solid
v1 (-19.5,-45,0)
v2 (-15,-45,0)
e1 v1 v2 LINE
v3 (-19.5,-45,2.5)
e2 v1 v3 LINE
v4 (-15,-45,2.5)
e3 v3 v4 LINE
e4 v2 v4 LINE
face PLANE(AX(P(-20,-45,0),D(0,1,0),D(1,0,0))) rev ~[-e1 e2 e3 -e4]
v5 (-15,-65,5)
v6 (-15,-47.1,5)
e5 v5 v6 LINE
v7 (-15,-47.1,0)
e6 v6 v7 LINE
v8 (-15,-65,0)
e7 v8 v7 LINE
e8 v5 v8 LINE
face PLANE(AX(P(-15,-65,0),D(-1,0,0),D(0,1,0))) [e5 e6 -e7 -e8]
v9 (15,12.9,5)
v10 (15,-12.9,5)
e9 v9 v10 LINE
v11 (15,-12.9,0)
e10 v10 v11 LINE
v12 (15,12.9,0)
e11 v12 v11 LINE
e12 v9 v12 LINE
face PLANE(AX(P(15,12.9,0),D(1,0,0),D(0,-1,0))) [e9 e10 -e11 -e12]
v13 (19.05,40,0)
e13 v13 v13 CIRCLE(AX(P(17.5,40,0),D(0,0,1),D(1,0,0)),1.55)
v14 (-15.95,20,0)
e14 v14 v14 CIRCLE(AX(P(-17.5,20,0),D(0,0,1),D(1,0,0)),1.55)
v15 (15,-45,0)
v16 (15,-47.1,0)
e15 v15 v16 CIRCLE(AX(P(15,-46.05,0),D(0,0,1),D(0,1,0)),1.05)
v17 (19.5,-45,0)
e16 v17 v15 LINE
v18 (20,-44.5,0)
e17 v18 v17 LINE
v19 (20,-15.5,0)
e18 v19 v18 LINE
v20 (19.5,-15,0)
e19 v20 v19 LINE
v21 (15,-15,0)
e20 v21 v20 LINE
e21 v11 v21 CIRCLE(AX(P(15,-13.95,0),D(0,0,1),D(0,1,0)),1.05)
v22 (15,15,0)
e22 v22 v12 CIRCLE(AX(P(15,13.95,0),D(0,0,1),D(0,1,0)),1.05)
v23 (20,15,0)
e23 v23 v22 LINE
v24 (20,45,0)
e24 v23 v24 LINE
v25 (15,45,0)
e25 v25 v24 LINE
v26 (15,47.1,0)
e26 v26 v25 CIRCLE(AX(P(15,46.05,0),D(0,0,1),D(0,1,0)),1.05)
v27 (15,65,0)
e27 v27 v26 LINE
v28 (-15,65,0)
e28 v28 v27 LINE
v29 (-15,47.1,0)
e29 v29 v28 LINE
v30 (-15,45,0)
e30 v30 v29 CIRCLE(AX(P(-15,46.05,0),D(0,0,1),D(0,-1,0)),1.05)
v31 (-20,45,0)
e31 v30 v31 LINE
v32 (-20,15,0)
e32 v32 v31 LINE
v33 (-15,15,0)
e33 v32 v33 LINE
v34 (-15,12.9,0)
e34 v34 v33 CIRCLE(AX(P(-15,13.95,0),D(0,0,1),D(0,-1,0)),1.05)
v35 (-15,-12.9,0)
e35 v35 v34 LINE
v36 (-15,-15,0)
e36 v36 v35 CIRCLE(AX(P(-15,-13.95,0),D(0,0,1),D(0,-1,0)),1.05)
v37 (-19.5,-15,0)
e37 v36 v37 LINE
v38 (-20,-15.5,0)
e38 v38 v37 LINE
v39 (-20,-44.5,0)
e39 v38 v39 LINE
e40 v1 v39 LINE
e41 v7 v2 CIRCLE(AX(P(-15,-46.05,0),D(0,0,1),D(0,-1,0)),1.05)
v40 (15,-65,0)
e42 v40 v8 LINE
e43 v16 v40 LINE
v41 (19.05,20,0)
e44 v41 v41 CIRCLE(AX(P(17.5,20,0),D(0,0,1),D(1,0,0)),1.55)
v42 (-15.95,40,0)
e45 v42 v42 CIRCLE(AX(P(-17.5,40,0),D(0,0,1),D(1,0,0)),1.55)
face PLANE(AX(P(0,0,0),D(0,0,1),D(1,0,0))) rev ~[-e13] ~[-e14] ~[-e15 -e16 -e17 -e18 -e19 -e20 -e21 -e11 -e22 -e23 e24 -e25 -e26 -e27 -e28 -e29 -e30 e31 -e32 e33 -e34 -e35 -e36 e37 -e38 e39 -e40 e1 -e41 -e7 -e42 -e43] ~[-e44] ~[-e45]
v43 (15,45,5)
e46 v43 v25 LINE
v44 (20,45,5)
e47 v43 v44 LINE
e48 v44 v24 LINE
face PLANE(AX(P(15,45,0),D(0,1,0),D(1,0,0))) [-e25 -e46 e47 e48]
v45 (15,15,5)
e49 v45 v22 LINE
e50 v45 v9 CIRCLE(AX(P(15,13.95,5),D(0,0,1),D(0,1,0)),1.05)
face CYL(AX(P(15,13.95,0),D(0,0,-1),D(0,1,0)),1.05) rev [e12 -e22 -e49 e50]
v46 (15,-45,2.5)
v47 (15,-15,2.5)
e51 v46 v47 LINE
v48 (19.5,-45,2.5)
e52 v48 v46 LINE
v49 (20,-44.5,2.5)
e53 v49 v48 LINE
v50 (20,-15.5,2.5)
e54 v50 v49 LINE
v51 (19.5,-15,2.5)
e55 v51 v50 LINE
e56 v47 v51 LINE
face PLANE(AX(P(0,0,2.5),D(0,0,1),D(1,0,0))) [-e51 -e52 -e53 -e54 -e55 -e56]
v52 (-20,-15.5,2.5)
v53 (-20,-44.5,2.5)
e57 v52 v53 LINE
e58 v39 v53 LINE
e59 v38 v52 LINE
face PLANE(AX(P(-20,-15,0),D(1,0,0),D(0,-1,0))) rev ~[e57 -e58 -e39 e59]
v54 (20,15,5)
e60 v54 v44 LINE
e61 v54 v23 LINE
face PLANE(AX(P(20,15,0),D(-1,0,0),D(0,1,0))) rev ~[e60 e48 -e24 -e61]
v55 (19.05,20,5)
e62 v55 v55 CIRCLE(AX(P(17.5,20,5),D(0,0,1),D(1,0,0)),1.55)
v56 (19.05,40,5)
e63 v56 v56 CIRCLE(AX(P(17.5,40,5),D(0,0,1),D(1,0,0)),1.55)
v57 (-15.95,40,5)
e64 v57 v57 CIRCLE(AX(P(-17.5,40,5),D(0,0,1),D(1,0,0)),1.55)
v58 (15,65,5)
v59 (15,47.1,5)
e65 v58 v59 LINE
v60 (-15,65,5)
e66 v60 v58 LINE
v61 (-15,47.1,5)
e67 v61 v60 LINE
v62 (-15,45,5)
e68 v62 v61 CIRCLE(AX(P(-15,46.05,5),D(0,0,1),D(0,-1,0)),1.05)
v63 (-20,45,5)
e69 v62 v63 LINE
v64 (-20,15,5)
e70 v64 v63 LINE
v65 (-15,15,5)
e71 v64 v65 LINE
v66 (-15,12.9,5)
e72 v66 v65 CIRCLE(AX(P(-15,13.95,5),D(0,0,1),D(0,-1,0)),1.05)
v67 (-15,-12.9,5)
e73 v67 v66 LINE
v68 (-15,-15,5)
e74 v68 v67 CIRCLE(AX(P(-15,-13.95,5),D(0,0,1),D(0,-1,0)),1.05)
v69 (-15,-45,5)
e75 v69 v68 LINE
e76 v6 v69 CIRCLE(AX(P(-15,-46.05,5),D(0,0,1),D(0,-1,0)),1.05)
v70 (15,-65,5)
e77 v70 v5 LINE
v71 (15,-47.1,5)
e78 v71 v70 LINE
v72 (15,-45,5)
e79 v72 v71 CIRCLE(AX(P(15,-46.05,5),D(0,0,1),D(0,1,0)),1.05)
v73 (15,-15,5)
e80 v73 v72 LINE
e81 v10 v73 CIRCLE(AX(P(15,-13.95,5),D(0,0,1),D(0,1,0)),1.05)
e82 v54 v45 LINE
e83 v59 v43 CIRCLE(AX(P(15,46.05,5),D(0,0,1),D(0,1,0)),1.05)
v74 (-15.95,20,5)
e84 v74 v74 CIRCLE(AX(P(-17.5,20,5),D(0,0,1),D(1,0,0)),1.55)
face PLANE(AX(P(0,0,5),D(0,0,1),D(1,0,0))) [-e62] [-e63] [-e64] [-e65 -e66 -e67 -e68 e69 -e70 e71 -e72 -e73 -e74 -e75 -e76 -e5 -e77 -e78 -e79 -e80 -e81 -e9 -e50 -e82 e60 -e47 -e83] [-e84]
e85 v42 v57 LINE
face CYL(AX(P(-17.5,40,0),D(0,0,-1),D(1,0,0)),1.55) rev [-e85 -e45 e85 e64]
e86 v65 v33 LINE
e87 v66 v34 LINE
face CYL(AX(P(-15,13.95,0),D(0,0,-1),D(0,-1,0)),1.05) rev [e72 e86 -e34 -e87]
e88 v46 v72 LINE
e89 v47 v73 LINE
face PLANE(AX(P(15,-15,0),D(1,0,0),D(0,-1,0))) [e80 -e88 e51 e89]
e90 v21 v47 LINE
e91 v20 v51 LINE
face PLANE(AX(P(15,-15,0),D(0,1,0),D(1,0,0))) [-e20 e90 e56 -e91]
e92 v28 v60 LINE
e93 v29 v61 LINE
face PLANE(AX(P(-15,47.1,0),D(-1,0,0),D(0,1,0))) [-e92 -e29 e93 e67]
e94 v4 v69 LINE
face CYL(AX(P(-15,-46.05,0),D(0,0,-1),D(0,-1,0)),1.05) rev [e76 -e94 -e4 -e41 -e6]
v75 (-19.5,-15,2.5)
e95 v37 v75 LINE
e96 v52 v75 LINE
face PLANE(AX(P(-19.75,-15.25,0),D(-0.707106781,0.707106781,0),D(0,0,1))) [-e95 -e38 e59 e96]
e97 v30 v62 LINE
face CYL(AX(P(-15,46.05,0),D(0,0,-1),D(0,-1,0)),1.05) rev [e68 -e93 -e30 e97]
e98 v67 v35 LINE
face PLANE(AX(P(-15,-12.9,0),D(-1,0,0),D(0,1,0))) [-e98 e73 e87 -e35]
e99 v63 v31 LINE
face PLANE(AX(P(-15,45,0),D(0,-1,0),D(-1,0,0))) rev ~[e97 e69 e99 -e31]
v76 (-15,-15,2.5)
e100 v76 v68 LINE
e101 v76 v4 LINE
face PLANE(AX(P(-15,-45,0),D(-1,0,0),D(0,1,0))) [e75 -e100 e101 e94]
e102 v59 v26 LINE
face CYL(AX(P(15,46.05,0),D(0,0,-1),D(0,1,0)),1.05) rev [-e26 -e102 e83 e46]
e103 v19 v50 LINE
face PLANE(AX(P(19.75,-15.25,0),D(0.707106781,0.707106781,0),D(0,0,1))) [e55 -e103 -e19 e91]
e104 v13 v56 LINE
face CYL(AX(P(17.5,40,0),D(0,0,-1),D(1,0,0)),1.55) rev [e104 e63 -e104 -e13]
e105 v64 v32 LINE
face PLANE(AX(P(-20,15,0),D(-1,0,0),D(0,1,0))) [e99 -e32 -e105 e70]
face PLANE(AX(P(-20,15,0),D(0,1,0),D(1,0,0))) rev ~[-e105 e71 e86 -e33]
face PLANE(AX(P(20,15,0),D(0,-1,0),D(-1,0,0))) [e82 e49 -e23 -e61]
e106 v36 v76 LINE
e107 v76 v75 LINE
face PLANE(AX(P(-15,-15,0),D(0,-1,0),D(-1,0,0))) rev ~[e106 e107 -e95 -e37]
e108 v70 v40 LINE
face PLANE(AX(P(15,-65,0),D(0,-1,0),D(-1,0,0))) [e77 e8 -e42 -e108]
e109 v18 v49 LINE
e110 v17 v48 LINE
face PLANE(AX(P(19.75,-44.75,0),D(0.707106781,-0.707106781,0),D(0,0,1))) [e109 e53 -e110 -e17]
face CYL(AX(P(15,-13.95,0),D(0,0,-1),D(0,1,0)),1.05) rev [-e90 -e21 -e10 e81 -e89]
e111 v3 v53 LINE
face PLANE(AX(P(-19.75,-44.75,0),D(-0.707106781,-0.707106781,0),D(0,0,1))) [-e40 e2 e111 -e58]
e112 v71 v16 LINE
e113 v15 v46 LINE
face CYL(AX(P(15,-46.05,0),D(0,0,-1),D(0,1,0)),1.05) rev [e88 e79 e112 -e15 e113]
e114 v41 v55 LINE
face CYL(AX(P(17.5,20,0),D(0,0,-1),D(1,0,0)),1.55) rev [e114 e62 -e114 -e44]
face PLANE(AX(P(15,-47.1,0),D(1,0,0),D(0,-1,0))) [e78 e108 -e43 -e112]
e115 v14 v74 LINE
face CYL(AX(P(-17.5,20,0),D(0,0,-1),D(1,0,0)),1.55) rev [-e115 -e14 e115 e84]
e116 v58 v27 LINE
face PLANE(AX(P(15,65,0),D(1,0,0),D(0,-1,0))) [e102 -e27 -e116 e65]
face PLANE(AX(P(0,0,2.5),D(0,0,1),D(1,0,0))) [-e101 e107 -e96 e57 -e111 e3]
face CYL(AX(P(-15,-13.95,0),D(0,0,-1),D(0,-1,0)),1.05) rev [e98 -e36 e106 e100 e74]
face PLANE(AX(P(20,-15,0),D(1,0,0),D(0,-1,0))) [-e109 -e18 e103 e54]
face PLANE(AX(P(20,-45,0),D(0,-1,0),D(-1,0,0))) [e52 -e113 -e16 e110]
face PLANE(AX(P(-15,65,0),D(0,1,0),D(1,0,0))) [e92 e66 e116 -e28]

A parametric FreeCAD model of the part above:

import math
import FreeCAD as App
import Part
import Sketcher

V = App.Vector
Q = App.Units.Quantity


def edges_at(feature, points):
    """Names of the edges that pass closest to the given points."""
    edges = feature.Shape.Edges
    near = lambda p: min(range(len(edges)), key=lambda i: edges[i].distToShape(Part.Vertex(*p))[0])
    return sorted({f"Edge{near(p) + 1}" for p in points})

doc = App.newDocument("Part")
body = doc.addObject("PartDesign::Body", "Body")

# Sketch on XY plane
sketch1 = body.newObject("Sketcher::SketchObject", "Sketch")
sketch1.AttachmentSupport = (doc.getObject("XY_Plane"), [""])
sketch1.MapMode = "FlatFace"
sketch1.addGeometry([
    Part.LineSegment(V(15, 65, 0), V(-15, 65, 0)),  # 0
    Part.LineSegment(V(-15, 65, 0), V(-15, 47.1, 0)),  # 1
    Part.ArcOfCircle(Part.Circle(V(-15, 46, 0), V(0, 0, 1), 1), math.radians(-90), math.radians(90)),  # 2
    Part.LineSegment(V(-15, 45, 0), V(-20, 45, 0)),  # 3
    Part.LineSegment(V(-20, 45, 0), V(-20, 15, 0)),  # 4
    Part.LineSegment(V(-20, 15, 0), V(-15, 15, 0)),  # 5
    Part.ArcOfCircle(Part.Circle(V(-15, 13.9, 0), V(0, 0, 1), 1), math.radians(-90), math.radians(90)),  # 6
    Part.LineSegment(V(-15, 12.9, 0), V(-15, -12.9, 0)),  # 7
    Part.ArcOfCircle(Part.Circle(V(-15, -13.9, 0), V(0, 0, 1), 1.1), math.radians(-90), math.radians(90)),  # 8
    Part.LineSegment(V(-15, -15, 0), V(-20, -15, 0)),  # 9
    Part.LineSegment(V(-20, -15, 0), V(-20, -45, 0)),  # 10
    Part.LineSegment(V(-20, -45, 0), V(-15, -45, 0)),  # 11
    Part.ArcOfCircle(Part.Circle(V(-15, -46, 0), V(0, 0, 1), 1.1), math.radians(-90), math.radians(90)),  # 12
    Part.LineSegment(V(-15, -47.1, 0), V(-15, -65, 0)),  # 13
    Part.LineSegment(V(-15, -65, 0), V(15, -65, 0)),  # 14
    Part.LineSegment(V(15, -65, 0), V(15, -47.1, 0)),  # 15
    Part.ArcOfCircle(Part.Circle(V(15, -46, 0), V(0, 0, 1), 1), math.radians(90), math.radians(270)),  # 16
    Part.LineSegment(V(15, -45, 0), V(20, -45, 0)),  # 17
    Part.LineSegment(V(20, -45, 0), V(20, -15, 0)),  # 18
    Part.LineSegment(V(20, -15, 0), V(15, -15, 0)),  # 19
    Part.ArcOfCircle(Part.Circle(V(15, -13.9, 0), V(0, 0, 1), 1), math.radians(90), math.radians(270)),  # 20
    Part.LineSegment(V(15, -12.9, 0), V(15, 12.9, 0)),  # 21
    Part.ArcOfCircle(Part.Circle(V(15, 13.9, 0), V(0, 0, 1), 1.1), math.radians(90), math.radians(270)),  # 22
    Part.LineSegment(V(15, 15, 0), V(20, 15, 0)),  # 23
    Part.LineSegment(V(20, 15, 0), V(20, 45, 0)),  # 24
    Part.LineSegment(V(20, 45, 0), V(15, 45, 0)),  # 25
    Part.ArcOfCircle(Part.Circle(V(15, 46, 0), V(0, 0, 1), 1.1), math.radians(90), math.radians(270)),  # 26
    Part.LineSegment(V(15, 47.1, 0), V(15, 65, 0)),  # 27
    Part.Circle(V(-17.5, 20, 0), V(0, 0, 1), 1.6),  # 28
    Part.Circle(V(-17.5, 40, 0), V(0, 0, 1), 1.6),  # 29
    Part.Circle(V(17.5, 20, 0), V(0, 0, 1), 1.6),  # 30
    Part.Circle(V(17.5, 40, 0), V(0, 0, 1), 1.6),  # 31
], False)
sketch1.addConstraint([
    Sketcher.Constraint("Coincident", 0, 2, 1, 1),
    Sketcher.Constraint("Coincident", 1, 2, 2, 2),
    Sketcher.Constraint("Tangent", 2, 1, 3, 1),
    Sketcher.Constraint("Coincident", 3, 2, 4, 1),
    Sketcher.Constraint("Coincident", 4, 2, 5, 1),
    Sketcher.Constraint("Tangent", 5, 2, 6, 2),
    Sketcher.Constraint("Coincident", 6, 1, 7, 1),
    Sketcher.Constraint("Coincident", 7, 2, 8, 2),
    Sketcher.Constraint("Tangent", 8, 1, 9, 1),
    Sketcher.Constraint("Coincident", 9, 2, 10, 1),
    Sketcher.Constraint("Coincident", 10, 2, 11, 1),
    Sketcher.Constraint("Tangent", 11, 2, 12, 2),
    Sketcher.Constraint("Coincident", 12, 1, 13, 1),
    Sketcher.Constraint("Coincident", 13, 2, 14, 1),
    Sketcher.Constraint("Coincident", 14, 2, 15, 1),
    Sketcher.Constraint("Coincident", 15, 2, 16, 2),
    Sketcher.Constraint("Tangent", 16, 1, 17, 1),
    Sketcher.Constraint("Coincident", 17, 2, 18, 1),
    Sketcher.Constraint("Coincident", 18, 2, 19, 1),
    Sketcher.Constraint("Tangent", 19, 2, 20, 2),
    Sketcher.Constraint("Coincident", 20, 1, 21, 1),
    Sketcher.Constraint("Coincident", 21, 2, 22, 2),
    Sketcher.Constraint("Tangent", 22, 1, 23, 1),
    Sketcher.Constraint("Coincident", 23, 2, 24, 1),
    Sketcher.Constraint("Coincident", 24, 2, 25, 1),
    Sketcher.Constraint("Tangent", 25, 2, 26, 2),
    Sketcher.Constraint("Coincident", 26, 1, 27, 1),
    Sketcher.Constraint("Coincident", 27, 2, 0, 1),
    Sketcher.Constraint("Horizontal", 0),
    Sketcher.Constraint("Vertical", 1),
    Sketcher.Constraint("Horizontal", 3),
    Sketcher.Constraint("Vertical", 4),
    Sketcher.Constraint("Horizontal", 5),
    Sketcher.Constraint("Vertical", 7),
    Sketcher.Constraint("Horizontal", 9),
    Sketcher.Constraint("Vertical", 10),
    Sketcher.Constraint("Horizontal", 11),
    Sketcher.Constraint("Vertical", 13),
    Sketcher.Constraint("Horizontal", 14),
    Sketcher.Constraint("Vertical", 15),
    Sketcher.Constraint("Horizontal", 17),
    Sketcher.Constraint("Vertical", 18),
    Sketcher.Constraint("Horizontal", 19),
    Sketcher.Constraint("Vertical", 21),
    Sketcher.Constraint("Horizontal", 23),
    Sketcher.Constraint("Vertical", 24),
    Sketcher.Constraint("Horizontal", 25),
    Sketcher.Constraint("Vertical", 27),
    Sketcher.Constraint("Equal", 2, 6),
    Sketcher.Constraint("Equal", 6, 8),
    Sketcher.Constraint("Equal", 8, 12),
    Sketcher.Constraint("Equal", 12, 16),
    Sketcher.Constraint("Equal", 16, 20),
    Sketcher.Constraint("Equal", 20, 22),
    Sketcher.Constraint("Equal", 22, 26),
    Sketcher.Constraint("Equal", 28, 29),
    Sketcher.Constraint("Equal", 29, 30),
    Sketcher.Constraint("Equal", 30, 31),
    Sketcher.Constraint("Symmetric", 2, 3, 16, 3, -1, 1),
    Sketcher.Constraint("Symmetric", 6, 3, 20, 3, -1, 1),
    Sketcher.Constraint("Symmetric", 8, 3, 22, 3, -1, 1),
    Sketcher.Constraint("Symmetric", 12, 3, 26, 3, -1, 1),
    Sketcher.Constraint("Symmetric", 0, 2, 14, 2, -1, 1),
    Sketcher.Constraint("Symmetric", 12, 3, 16, 3, -2),
    Sketcher.Constraint("Symmetric", 8, 3, 20, 3, -2),
    Sketcher.Constraint("Symmetric", 28, 3, 30, 3, -2),
    Sketcher.Constraint("Symmetric", 29, 3, 31, 3, -2),
    Sketcher.Constraint("Vertical", 2, 3, 6, 3),
    Sketcher.Constraint("Vertical", 28, 3, 29, 3),
    Sketcher.Constraint("Vertical", 12, 3, 0, 2),
    Sketcher.Constraint("Vertical", 5, 2, 6, 1),
    Sketcher.Constraint("Vertical", 4, 2, 9, 2),
    Sketcher.Constraint("Vertical", 11, 2, 12, 1),
    Sketcher.Constraint("Vertical", 19, 2, 20, 1),
    Sketcher.Constraint("Vertical", 18, 2, 23, 2),
    Sketcher.Constraint("Vertical", 25, 2, 26, 1),
    Sketcher.Constraint("Equal", 11, 17),
    Sketcher.Constraint("Equal", 14, 4),
    Sketcher.Constraint("Diameter", 28, Q("3.1 mm")),
    Sketcher.Constraint("DistanceX", 0, 2, 0, 1, Q("30 mm")),
    Sketcher.Constraint("DistanceX", 3, 2, 3, 1, Q("5 mm")),
    Sketcher.Constraint("Radius", 2, Q("1.05 mm")),
    Sketcher.Constraint("DistanceY", -1, 1, 28, 3, Q("20 mm")),
    Sketcher.Constraint("DistanceY", 28, 3, 29, 3, Q("20 mm")),
    Sketcher.Constraint("DistanceY", 29, 3, 2, 1, Q("5 mm")),
    Sketcher.Constraint("DistanceY", 2, 1, 0, 2, Q("20 mm")),
    Sketcher.Constraint("DistanceX", 28, 3, 6, 3, Q("2.5 mm")),
])
pad1 = body.newObject("PartDesign::Pad", "Pad")
pad1.Profile = sketch1
pad1.Length = 2.5

# Sketch on XY plane
sketch2 = body.newObject("Sketcher::SketchObject", "Sketch001")
sketch2.AttachmentSupport = (doc.getObject("XY_Plane"), [""])
sketch2.MapMode = "FlatFace"
sketch2.addGeometry([
    Part.LineSegment(V(15, 65, 0), V(-15, 65, 0)),  # 0
    Part.LineSegment(V(-15, 65, 0), V(-15, 47.1, 0)),  # 1
    Part.ArcOfCircle(Part.Circle(V(-15, 46, 0), V(0, 0, 1), 1), math.radians(-90), math.radians(90)),  # 2
    Part.LineSegment(V(-15, 45, 0), V(-20, 45, 0)),  # 3
    Part.LineSegment(V(-20, 45, 0), V(-20, 15, 0)),  # 4
    Part.LineSegment(V(-20, 15, 0), V(-15, 15, 0)),  # 5
    Part.ArcOfCircle(Part.Circle(V(-15, 13.9, 0), V(0, 0, 1), 1), math.radians(-90), math.radians(90)),  # 6
    Part.LineSegment(V(-15, 12.9, 0), V(-15, -12.9, 0)),  # 7
    Part.ArcOfCircle(Part.Circle(V(-15, -13.9, 0), V(0, 0, 1), 1.1), math.radians(-90), math.radians(90)),  # 8
    Part.LineSegment(V(-15, -15, 0), V(-15, -45, 0)),  # 9
    Part.ArcOfCircle(Part.Circle(V(-15, -46, 0), V(0, 0, 1), 1.1), math.radians(-90), math.radians(90)),  # 10
    Part.LineSegment(V(-15, -47.1, 0), V(-15, -65, 0)),  # 11
    Part.LineSegment(V(-15, -65, 0), V(15, -65, 0)),  # 12
    Part.LineSegment(V(15, -65, 0), V(15, -47.1, 0)),  # 13
    Part.ArcOfCircle(Part.Circle(V(15, -46, 0), V(0, 0, 1), 1), math.radians(90), math.radians(270)),  # 14
    Part.LineSegment(V(15, -45, 0), V(15, -15, 0)),  # 15
    Part.ArcOfCircle(Part.Circle(V(15, -13.9, 0), V(0, 0, 1), 1), math.radians(90), math.radians(270)),  # 16
    Part.LineSegment(V(15, -12.9, 0), V(15, 12.9, 0)),  # 17
    Part.ArcOfCircle(Part.Circle(V(15, 13.9, 0), V(0, 0, 1), 1.1), math.radians(90), math.radians(270)),  # 18
    Part.LineSegment(V(15, 15, 0), V(20, 15, 0)),  # 19
    Part.LineSegment(V(20, 15, 0), V(20, 45, 0)),  # 20
    Part.LineSegment(V(20, 45, 0), V(15, 45, 0)),  # 21
    Part.ArcOfCircle(Part.Circle(V(15, 46, 0), V(0, 0, 1), 1.1), math.radians(90), math.radians(270)),  # 22
    Part.LineSegment(V(15, 47.1, 0), V(15, 65, 0)),  # 23
    Part.Circle(V(-17.5, 20, 0), V(0, 0, 1), 1.6),  # 24
    Part.Circle(V(-17.5, 40, 0), V(0, 0, 1), 1.6),  # 25
    Part.Circle(V(17.5, 20, 0), V(0, 0, 1), 1.6),  # 26
    Part.Circle(V(17.5, 40, 0), V(0, 0, 1), 1.6),  # 27
], False)
sketch2.addConstraint([
    Sketcher.Constraint("Coincident", 0, 2, 1, 1),
    Sketcher.Constraint("Coincident", 1, 2, 2, 2),
    Sketcher.Constraint("Tangent", 2, 1, 3, 1),
    Sketcher.Constraint("Coincident", 3, 2, 4, 1),
    Sketcher.Constraint("Coincident", 4, 2, 5, 1),
    Sketcher.Constraint("Tangent", 5, 2, 6, 2),
    Sketcher.Constraint("Coincident", 6, 1, 7, 1),
    Sketcher.Constraint("Coincident", 7, 2, 8, 2),
    Sketcher.Constraint("Coincident", 8, 1, 9, 1),
    Sketcher.Constraint("Coincident", 9, 2, 10, 2),
    Sketcher.Constraint("Coincident", 10, 1, 11, 1),
    Sketcher.Constraint("Coincident", 11, 2, 12, 1),
    Sketcher.Constraint("Coincident", 12, 2, 13, 1),
    Sketcher.Constraint("Coincident", 13, 2, 14, 2),
    Sketcher.Constraint("Coincident", 14, 1, 15, 1),
    Sketcher.Constraint("Coincident", 15, 2, 16, 2),
    Sketcher.Constraint("Coincident", 16, 1, 17, 1),
    Sketcher.Constraint("Coincident", 17, 2, 18, 2),
    Sketcher.Constraint("Tangent", 18, 1, 19, 1),
    Sketcher.Constraint("Coincident", 19, 2, 20, 1),
    Sketcher.Constraint("Coincident", 20, 2, 21, 1),
    Sketcher.Constraint("Tangent", 21, 2, 22, 2),
    Sketcher.Constraint("Coincident", 22, 1, 23, 1),
    Sketcher.Constraint("Coincident", 23, 2, 0, 1),
    Sketcher.Constraint("Horizontal", 0),
    Sketcher.Constraint("Vertical", 1),
    Sketcher.Constraint("Horizontal", 3),
    Sketcher.Constraint("Vertical", 4),
    Sketcher.Constraint("Horizontal", 5),
    Sketcher.Constraint("Vertical", 7),
    Sketcher.Constraint("Vertical", 9),
    Sketcher.Constraint("Vertical", 11),
    Sketcher.Constraint("Horizontal", 12),
    Sketcher.Constraint("Vertical", 13),
    Sketcher.Constraint("Vertical", 15),
    Sketcher.Constraint("Vertical", 17),
    Sketcher.Constraint("Horizontal", 19),
    Sketcher.Constraint("Vertical", 20),
    Sketcher.Constraint("Horizontal", 21),
    Sketcher.Constraint("Vertical", 23),
    Sketcher.Constraint("Equal", 2, 6),
    Sketcher.Constraint("Equal", 6, 8),
    Sketcher.Constraint("Equal", 8, 10),
    Sketcher.Constraint("Equal", 10, 14),
    Sketcher.Constraint("Equal", 14, 16),
    Sketcher.Constraint("Equal", 16, 18),
    Sketcher.Constraint("Equal", 18, 22),
    Sketcher.Constraint("Equal", 24, 25),
    Sketcher.Constraint("Equal", 25, 26),
    Sketcher.Constraint("Equal", 26, 27),
    Sketcher.Constraint("Symmetric", 2, 3, 14, 3, -1, 1),
    Sketcher.Constraint("Symmetric", 6, 3, 16, 3, -1, 1),
    Sketcher.Constraint("Symmetric", 8, 3, 18, 3, -1, 1),
    Sketcher.Constraint("Symmetric", 10, 3, 22, 3, -1, 1),
    Sketcher.Constraint("Symmetric", 0, 2, 12, 2, -1, 1),
    Sketcher.Constraint("Symmetric", 10, 3, 14, 3, -2),
    Sketcher.Constraint("Symmetric", 8, 3, 16, 3, -2),
    Sketcher.Constraint("Symmetric", 24, 3, 26, 3, -2),
    Sketcher.Constraint("Symmetric", 25, 3, 27, 3, -2),
    Sketcher.Constraint("Vertical", 2, 3, 6, 3),
    Sketcher.Constraint("Vertical", 24, 3, 25, 3),
    Sketcher.Constraint("Vertical", 10, 3, 0, 2),
    Sketcher.Constraint("Vertical", 5, 2, 6, 1),
    Sketcher.Constraint("Vertical", 7, 2, 8, 1),
    Sketcher.Constraint("Vertical", 9, 2, 10, 1),
    Sketcher.Constraint("Vertical", 13, 2, 14, 1),
    Sketcher.Constraint("Vertical", 15, 2, 16, 1),
    Sketcher.Constraint("Vertical", 21, 2, 22, 1),
    Sketcher.Constraint("Equal", 5, 19),
    Sketcher.Constraint("Equal", 12, 4),
    Sketcher.Constraint("Diameter", 24, Q("3.1 mm")),
    Sketcher.Constraint("DistanceX", 0, 2, 0, 1, Q("30 mm")),
    Sketcher.Constraint("DistanceX", 3, 2, 3, 1, Q("5 mm")),
    Sketcher.Constraint("Radius", 2, Q("1.05 mm")),
    Sketcher.Constraint("DistanceY", -1, 1, 24, 3, Q("20 mm")),
    Sketcher.Constraint("DistanceY", 24, 3, 25, 3, Q("20 mm")),
    Sketcher.Constraint("DistanceY", 25, 3, 2, 1, Q("5 mm")),
    Sketcher.Constraint("DistanceY", 2, 1, 0, 2, Q("20 mm")),
    Sketcher.Constraint("DistanceX", 24, 3, 6, 3, Q("2.5 mm")),
])
pad2 = body.newObject("PartDesign::Pad", "Pad001")
pad2.Profile = sketch2
pad2.Length = 5
doc.recompute()

chamfer = body.newObject("PartDesign::Chamfer", "Chamfer")
chamfer.Base = (pad2, edges_at(pad2, [
    (20, -15, 1.25),
    (20, -45, 1.25),
    (-20, -15, 1.25),
    (-20, -45, 1.25),
]))
chamfer.Size = 0.5

doc.recompute()
